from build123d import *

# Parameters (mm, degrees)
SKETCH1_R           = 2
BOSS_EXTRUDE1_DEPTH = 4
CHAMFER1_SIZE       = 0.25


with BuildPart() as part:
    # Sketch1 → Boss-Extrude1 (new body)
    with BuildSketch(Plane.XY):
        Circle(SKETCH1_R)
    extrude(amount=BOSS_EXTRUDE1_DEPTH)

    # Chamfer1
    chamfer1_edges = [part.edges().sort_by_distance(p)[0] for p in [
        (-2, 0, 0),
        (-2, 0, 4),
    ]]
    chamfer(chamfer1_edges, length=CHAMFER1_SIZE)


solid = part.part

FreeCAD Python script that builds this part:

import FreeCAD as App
import Part
import Sketcher

V = App.Vector
Q = App.Units.Quantity


def edges_at(feature, points):
    """Names of the edges that pass closest to the given points."""
    edges = feature.Shape.Edges
    near = lambda p: min(range(len(edges)), key=lambda i: edges[i].distToShape(Part.Vertex(*p))[0])
    return sorted({f"Edge{near(p) + 1}" for p in points})

doc = App.newDocument("Part")
body = doc.addObject("PartDesign::Body", "Body")

# Sketch on XY plane
sketch1 = body.newObject("Sketcher::SketchObject", "Sketch")
sketch1.AttachmentSupport = (doc.getObject("XY_Plane"), [""])
sketch1.MapMode = "FlatFace"
sketch1.addGeometry(Part.Circle(V(0, 0, 0), V(0, 0, 1), 2), False)
sketch1.addConstraint(Sketcher.Constraint("Coincident", 0, 3, -1, 1))
sketch1.addConstraint(Sketcher.Constraint("Diameter", 0, Q("4 mm")))
pad1 = body.newObject("PartDesign::Pad", "Pad")
pad1.Profile = sketch1
pad1.Length = 4
doc.recompute()

chamfer = body.newObject("PartDesign::Chamfer", "Chamfer")
chamfer.Base = (pad1, edges_at(pad1, [(-2, 0, 0), (-2, 0, 4)]))
chamfer.Size = 0.25

doc.recompute()
